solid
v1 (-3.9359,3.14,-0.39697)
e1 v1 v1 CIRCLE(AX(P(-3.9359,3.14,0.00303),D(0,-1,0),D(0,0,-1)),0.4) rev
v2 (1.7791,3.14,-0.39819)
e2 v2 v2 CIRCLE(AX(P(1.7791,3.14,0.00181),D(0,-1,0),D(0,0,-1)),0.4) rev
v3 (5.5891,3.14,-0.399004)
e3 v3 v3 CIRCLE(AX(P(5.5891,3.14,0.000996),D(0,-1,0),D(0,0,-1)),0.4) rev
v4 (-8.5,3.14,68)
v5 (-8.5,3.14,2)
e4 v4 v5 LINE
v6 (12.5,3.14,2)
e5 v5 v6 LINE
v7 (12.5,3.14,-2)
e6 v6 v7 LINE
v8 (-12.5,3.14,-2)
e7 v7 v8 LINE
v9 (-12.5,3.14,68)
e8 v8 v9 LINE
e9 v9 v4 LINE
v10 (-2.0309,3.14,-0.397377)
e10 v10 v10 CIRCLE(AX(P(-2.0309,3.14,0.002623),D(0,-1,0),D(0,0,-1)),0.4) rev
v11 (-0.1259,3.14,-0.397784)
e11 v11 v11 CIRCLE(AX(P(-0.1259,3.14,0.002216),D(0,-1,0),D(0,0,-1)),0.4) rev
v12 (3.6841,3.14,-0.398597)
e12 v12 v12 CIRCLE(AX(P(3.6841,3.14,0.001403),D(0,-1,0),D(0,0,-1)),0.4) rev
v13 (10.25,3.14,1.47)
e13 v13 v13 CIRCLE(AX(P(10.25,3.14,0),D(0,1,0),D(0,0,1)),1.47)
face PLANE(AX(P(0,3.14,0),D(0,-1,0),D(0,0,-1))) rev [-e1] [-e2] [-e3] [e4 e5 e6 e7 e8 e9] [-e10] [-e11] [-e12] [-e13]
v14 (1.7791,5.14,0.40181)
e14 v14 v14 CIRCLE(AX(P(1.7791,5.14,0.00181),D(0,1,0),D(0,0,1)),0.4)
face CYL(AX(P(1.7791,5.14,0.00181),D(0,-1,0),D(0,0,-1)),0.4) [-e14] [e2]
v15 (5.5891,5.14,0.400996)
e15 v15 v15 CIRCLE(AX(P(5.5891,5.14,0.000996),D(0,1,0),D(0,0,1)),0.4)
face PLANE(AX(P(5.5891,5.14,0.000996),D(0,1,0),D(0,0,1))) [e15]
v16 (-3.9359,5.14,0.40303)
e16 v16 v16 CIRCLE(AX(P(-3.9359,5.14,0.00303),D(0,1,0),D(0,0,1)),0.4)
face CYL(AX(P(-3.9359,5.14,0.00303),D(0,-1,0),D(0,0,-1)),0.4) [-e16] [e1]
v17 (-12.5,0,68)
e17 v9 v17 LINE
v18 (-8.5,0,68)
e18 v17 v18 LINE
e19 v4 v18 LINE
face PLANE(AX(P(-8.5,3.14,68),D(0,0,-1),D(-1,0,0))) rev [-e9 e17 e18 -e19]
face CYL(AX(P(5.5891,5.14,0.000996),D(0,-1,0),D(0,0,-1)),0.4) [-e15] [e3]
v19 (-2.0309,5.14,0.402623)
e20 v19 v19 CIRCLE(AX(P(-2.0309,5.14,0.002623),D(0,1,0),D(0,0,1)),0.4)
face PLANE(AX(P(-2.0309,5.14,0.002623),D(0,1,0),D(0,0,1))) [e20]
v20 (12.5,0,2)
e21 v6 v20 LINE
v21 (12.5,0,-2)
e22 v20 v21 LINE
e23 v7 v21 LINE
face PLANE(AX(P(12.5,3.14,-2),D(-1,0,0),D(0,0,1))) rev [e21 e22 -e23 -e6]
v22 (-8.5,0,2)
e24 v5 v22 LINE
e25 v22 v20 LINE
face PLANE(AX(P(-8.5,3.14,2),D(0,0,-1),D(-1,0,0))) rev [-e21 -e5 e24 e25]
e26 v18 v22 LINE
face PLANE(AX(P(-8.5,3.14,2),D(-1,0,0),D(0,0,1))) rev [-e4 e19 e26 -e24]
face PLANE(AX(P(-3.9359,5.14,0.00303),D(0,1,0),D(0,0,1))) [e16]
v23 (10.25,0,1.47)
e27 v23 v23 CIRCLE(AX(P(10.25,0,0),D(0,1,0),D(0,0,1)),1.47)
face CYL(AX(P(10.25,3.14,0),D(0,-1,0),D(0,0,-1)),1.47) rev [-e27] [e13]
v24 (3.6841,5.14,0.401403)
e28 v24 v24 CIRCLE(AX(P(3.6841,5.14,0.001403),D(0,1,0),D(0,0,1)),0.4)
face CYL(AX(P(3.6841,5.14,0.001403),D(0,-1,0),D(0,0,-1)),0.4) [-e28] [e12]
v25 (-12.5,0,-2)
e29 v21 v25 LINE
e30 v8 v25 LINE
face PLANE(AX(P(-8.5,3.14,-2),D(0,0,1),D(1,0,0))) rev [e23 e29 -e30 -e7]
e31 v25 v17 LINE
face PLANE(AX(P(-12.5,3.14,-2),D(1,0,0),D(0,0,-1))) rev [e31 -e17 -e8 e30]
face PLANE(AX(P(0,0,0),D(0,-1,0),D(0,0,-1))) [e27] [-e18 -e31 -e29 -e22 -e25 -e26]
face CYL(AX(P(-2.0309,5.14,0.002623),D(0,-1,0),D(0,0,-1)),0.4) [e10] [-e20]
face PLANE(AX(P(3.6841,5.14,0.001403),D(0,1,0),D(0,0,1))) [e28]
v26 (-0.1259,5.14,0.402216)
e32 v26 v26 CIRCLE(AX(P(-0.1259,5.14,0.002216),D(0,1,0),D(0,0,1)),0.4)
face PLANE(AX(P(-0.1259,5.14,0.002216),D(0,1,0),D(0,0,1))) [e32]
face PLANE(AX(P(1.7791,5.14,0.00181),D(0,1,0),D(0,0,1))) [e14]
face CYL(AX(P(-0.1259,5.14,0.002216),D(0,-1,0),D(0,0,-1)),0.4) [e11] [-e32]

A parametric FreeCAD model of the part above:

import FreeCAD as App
import Part
import Sketcher
from FreeCAD import Vector


def add_polygon(sketch, points):
    """Adds a closed chain of lines whose ends are joined by coincident constraints."""
    first, n = sketch.GeometryCount, len(points)
    for a, b in zip(points, points[1:] + points[:1]):
        sketch.addGeometry(Part.LineSegment(App.Vector(*a, 0), App.Vector(*b, 0)), False)
    for i in range(n):
        sketch.addConstraint(Sketcher.Constraint("Coincident", first + i, 2, first + (i + 1) % n, 1))

doc = App.newDocument("Part")
params = doc.addObject("Spreadsheet::Sheet", "Params")
for row, (alias, value) in enumerate([
    ("sketch1_diameter", "2.94 mm"),
    ("sketch1_width", "25 mm"),
    ("sketch1_width2", "4 mm"),
    ("sketch1_height", "70 mm"),
    ("pad1_length", "3.14 mm"),
    ("sketch2_diameter", "0.8 mm"),
    ("pad2_length", "2 mm"),
], start=1):
    params.set(f"A{row}", alias)
    params.set(f"B{row}", "=" + value)
    params.setAlias(f"B{row}", alias)

body = doc.addObject("PartDesign::Body", "Body")

# Sketch on XZ plane
sketch1 = doc.addObject("Sketcher::SketchObject", "Sketch")
body.addObject(sketch1)
sketch1.AttachmentSupport = (doc.XZ_Plane, [""])
sketch1.MapMode = "FlatFace"
add_polygon(sketch1, [(12.5, 2), (12.5, -2), (-12.5, -2), (-12.5, 68), (-8.5, 68), (-8.5, 2)])  # lines 0-5
sketch1.addGeometry(Part.Circle(Vector(10.25, 0, 0), Vector(0, 0, 1), 1.47), False)  # 6
sketch1.addConstraint([
    Sketcher.Constraint("Vertical", 0),
    Sketcher.Constraint("Horizontal", 1),
    Sketcher.Constraint("Vertical", 2),
    Sketcher.Constraint("Horizontal", 3),
    Sketcher.Constraint("Vertical", 4),
    Sketcher.Constraint("Horizontal", 5),
    Sketcher.Constraint("Symmetric", 1, 2, 5, 2, -1, 1),
    Sketcher.Constraint("PointOnObject", 6, 3, -1),
    Sketcher.Constraint("Equal", 3, 0),
    Sketcher.Constraint("Diameter", 6, 2.94),
    Sketcher.Constraint("DistanceX", 1, 2, 1, 1, 25.0),
    Sketcher.Constraint("DistanceX", 3, 1, 3, 2, 4.0),
    Sketcher.Constraint("DistanceY", 2, 1, 2, 2, 70.0),
    Sketcher.Constraint("DistanceX", -1, 1, 6, 3, 10.25),
])
sketch1.setExpression("Constraints[15]", "Params.sketch1_diameter")
sketch1.setExpression("Constraints[16]", "Params.sketch1_width")
sketch1.setExpression("Constraints[17]", "Params.sketch1_width2")
sketch1.setExpression("Constraints[18]", "Params.sketch1_height")
pad1 = doc.addObject("PartDesign::Pad", "Pad")
body.addObject(pad1)
pad1.Profile = sketch1
pad1.setExpression("Length", "Params.pad1_length")
pad1.Reversed = True

# Sketch on XZ plane
sketch2 = doc.addObject("Sketcher::SketchObject", "Sketch001")
body.addObject(sketch2)
sketch2.AttachmentSupport = (doc.XZ_Plane, [""])
sketch2.MapMode = "FlatFace"
sketch2.AttachmentOffset = App.Placement(Vector(0, 0, -3.14), App.Rotation())
sketch2.addGeometry([
    Part.Circle(Vector(-3.9359, 0.00303, 0), Vector(0, 0, 1), 0.4),  # 0
    Part.Circle(Vector(-2.0309, 0.002623, 0), Vector(0, 0, 1), 0.4),  # 1
    Part.Circle(Vector(-0.1259, 0.002216, 0), Vector(0, 0, 1), 0.4),  # 2
    Part.Circle(Vector(1.7791, 0.00181, 0), Vector(0, 0, 1), 0.4),  # 3
    Part.Circle(Vector(3.6841, 0.001403, 0), Vector(0, 0, 1), 0.4),  # 4
    Part.Circle(Vector(5.5891, 0.000996, 0), Vector(0, 0, 1), 0.4),  # 5
], False)
sketch2.addConstraint([
    Sketcher.Constraint("Equal", 0, 1),
    Sketcher.Constraint("Equal", 1, 2),
    Sketcher.Constraint("Equal", 2, 3),
    Sketcher.Constraint("Equal", 3, 4),
    Sketcher.Constraint("Equal", 4, 5),
    Sketcher.Constraint("Diameter", 0, 0.8),
    Sketcher.Constraint("DistanceX", 0, 3, 2, 3, 3.81),
    Sketcher.Constraint("DistanceX", 1, 3, 3, 3, 3.81),
    Sketcher.Constraint("DistanceX", 2, 3, 4, 3, 3.81),
    Sketcher.Constraint("DistanceX", 3, 3, 5, 3, 3.81),
    Sketcher.Constraint("DistanceX", 0, 3, 1, 3, 1.905),
    Sketcher.Constraint("DistanceX", 0, 3, -1, 1, 3.9359),
    Sketcher.Constraint("DistanceY", -1, 1, 0, 3, 0.00303),
    Sketcher.Constraint("DistanceY", -1, 1, 3, 3, 0.00181),
    Sketcher.Constraint("DistanceY", 4, 3, 1, 3, 0.001221),
    Sketcher.Constraint("DistanceY", 5, 3, 2, 3, 0.001221),
    Sketcher.Constraint("DistanceY", -1, 1, 1, 3, 0.002623),
    Sketcher.Constraint("DistanceY", -1, 1, 2, 3, 0.002216),
])
sketch2.setExpression("Constraints[5]", "Params.sketch2_diameter")
pad2 = doc.addObject("PartDesign::Pad", "Pad001")
body.addObject(pad2)
pad2.Profile = sketch2
pad2.setExpression("Length", "Params.pad2_length")
pad2.Reversed = True

doc.recompute()
